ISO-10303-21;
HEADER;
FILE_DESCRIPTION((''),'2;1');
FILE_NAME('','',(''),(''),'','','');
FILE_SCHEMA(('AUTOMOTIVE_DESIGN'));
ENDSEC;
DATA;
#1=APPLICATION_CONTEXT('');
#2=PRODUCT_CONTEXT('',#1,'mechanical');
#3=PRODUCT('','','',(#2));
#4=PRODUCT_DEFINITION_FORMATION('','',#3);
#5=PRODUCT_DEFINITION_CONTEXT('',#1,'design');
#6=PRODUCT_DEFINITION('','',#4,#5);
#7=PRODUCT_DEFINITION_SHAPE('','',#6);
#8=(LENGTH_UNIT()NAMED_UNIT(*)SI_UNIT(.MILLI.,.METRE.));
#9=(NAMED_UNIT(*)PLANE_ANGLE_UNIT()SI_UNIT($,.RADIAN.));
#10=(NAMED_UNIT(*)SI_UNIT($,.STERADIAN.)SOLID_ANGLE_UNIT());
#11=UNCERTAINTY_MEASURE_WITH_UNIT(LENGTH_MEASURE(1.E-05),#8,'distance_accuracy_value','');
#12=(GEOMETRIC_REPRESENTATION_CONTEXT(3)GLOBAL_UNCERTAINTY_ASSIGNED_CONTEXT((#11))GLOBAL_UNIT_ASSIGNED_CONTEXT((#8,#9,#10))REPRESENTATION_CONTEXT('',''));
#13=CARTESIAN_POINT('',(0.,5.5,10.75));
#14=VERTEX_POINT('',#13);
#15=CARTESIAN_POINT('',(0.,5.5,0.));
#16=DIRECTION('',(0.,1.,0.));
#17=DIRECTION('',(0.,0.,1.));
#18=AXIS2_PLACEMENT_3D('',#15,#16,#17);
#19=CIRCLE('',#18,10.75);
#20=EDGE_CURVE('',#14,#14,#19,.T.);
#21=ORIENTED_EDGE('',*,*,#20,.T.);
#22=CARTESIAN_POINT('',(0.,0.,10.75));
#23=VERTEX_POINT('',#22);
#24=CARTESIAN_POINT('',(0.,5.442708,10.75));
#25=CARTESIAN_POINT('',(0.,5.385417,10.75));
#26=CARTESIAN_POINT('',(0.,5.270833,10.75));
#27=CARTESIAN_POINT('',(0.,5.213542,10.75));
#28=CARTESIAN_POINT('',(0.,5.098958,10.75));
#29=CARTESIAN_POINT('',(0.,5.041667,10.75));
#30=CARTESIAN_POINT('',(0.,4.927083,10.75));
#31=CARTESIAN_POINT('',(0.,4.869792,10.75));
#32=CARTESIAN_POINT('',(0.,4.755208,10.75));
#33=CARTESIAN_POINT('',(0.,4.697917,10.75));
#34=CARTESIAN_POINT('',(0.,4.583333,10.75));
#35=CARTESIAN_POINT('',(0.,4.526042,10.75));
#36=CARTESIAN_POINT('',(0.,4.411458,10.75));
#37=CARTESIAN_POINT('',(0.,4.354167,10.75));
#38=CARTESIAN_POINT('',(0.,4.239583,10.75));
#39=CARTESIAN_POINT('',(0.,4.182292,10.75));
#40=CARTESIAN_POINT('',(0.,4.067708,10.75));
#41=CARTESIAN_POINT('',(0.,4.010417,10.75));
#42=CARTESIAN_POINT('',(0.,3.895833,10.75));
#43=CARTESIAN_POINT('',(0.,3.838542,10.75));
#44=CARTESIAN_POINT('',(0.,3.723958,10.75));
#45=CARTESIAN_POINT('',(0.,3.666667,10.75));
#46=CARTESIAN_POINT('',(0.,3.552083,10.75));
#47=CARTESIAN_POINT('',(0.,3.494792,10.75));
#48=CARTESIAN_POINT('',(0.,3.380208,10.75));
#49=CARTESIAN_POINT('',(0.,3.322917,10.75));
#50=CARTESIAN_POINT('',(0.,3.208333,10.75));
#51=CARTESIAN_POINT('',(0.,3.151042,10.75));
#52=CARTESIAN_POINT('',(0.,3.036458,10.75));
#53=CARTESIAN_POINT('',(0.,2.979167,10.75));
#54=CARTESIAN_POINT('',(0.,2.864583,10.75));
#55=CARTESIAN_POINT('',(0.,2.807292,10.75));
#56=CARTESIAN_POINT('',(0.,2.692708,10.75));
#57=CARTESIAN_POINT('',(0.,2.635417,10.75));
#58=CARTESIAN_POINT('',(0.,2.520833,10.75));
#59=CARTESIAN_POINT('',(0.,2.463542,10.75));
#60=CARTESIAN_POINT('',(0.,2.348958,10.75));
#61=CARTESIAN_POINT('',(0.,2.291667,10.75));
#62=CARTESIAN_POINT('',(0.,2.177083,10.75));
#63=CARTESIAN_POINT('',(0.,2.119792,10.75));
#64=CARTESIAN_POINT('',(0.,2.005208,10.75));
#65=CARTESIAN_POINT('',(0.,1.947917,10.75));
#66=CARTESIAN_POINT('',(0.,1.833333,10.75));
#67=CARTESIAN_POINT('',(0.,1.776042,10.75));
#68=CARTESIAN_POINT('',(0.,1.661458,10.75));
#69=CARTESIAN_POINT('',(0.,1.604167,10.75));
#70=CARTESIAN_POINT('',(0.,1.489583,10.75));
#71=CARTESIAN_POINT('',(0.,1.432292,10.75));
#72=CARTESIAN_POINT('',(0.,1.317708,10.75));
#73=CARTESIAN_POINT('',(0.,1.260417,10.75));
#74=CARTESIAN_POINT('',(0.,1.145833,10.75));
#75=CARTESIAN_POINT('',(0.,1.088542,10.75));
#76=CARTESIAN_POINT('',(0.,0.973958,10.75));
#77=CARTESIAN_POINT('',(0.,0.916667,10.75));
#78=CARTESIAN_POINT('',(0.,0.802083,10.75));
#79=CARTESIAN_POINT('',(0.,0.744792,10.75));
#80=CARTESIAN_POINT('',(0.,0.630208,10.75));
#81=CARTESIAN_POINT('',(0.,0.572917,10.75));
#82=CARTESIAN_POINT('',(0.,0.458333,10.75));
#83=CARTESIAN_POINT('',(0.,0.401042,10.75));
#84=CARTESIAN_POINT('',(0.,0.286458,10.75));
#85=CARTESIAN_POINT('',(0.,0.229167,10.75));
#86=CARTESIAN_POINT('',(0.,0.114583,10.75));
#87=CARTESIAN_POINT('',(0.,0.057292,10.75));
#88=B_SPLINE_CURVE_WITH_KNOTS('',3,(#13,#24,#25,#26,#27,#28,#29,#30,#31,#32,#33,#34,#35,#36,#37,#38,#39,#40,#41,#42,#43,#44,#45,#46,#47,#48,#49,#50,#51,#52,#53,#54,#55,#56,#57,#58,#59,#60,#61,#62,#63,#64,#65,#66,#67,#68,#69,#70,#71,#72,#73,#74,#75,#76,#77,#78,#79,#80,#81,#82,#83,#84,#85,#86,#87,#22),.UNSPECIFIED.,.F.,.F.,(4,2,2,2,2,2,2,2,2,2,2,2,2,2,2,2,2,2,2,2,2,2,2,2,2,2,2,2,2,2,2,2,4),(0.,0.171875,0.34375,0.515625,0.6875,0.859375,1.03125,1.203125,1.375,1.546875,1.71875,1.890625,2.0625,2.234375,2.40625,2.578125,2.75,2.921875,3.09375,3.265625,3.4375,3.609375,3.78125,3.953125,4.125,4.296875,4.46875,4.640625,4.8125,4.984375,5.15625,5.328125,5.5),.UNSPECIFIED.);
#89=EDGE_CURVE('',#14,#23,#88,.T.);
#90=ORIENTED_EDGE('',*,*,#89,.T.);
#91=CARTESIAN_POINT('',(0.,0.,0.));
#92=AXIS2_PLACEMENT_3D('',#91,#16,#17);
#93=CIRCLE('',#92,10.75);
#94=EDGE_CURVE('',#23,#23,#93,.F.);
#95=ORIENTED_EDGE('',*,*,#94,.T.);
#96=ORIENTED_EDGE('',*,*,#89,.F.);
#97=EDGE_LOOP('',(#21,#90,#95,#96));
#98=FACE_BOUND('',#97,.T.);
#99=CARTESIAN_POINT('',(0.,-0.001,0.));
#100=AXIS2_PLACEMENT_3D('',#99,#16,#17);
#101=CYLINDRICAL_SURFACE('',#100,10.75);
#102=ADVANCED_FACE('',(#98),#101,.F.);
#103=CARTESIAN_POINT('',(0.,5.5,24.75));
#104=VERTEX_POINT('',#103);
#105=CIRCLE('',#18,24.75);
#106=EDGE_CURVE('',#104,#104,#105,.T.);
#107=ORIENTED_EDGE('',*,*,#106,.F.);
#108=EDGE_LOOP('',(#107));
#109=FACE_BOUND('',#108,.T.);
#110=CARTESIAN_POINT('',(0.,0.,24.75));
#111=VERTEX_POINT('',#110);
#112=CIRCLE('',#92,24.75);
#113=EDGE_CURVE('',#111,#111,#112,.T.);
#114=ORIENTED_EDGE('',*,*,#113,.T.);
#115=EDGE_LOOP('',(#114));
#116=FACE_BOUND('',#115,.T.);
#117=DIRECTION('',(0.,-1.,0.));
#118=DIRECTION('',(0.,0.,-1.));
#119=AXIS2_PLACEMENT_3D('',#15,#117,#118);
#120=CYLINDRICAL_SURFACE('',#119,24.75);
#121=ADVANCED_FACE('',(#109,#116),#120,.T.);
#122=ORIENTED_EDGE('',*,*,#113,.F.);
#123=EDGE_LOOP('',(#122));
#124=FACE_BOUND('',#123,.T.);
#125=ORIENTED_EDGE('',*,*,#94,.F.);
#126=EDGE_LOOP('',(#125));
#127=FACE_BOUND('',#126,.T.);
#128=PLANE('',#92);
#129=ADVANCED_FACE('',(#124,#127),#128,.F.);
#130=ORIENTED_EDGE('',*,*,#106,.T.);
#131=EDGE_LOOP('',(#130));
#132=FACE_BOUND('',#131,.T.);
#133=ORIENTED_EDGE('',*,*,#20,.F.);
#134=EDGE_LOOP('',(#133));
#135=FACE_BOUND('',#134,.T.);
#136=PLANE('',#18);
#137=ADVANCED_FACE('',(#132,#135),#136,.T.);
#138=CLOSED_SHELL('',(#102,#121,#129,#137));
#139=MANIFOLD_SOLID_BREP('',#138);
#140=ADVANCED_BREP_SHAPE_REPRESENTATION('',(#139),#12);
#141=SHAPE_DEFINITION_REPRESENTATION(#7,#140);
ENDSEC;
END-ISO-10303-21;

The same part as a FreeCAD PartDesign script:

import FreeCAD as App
import Part
import Sketcher
Q = App.Units.Quantity

doc = App.newDocument("Part")
body = doc.addObject("PartDesign::Body", "Body")

# Sketch on XZ plane
sketch1 = body.newObject("Sketcher::SketchObject", "Sketch")
sketch1.AttachmentSupport = (doc.getObject("XZ_Plane"), [""])
sketch1.MapMode = "FlatFace"
sketch1.addGeometry(Part.Circle(App.Vector(0, 0, 0), App.Vector(0, 0, 1), 25), False)
sketch1.addConstraint([
    Sketcher.Constraint("Coincident", 0, 3, -1, 1),
    Sketcher.Constraint("Diameter", 0, Q("49.5 mm")),
])
pad1 = body.newObject("PartDesign::Pad", "Pad")
pad1.Profile = sketch1
pad1.Length = 5.5
pad1.Reversed = True

# Sketch on XZ plane
sketch2 = body.newObject("Sketcher::SketchObject", "Sketch001")
sketch2.AttachmentSupport = (doc.getObject("XZ_Plane"), [""])
sketch2.MapMode = "FlatFace"
sketch2.AttachmentOffset = App.Placement(App.Vector(0, 0, -5.5), App.Rotation())
sketch2.addGeometry(Part.Circle(App.Vector(0, 0, 0), App.Vector(0, 0, 1), 11), False)
sketch2.addConstraint([
    Sketcher.Constraint("Coincident", 0, 3, -1, 1),
    Sketcher.Constraint("Diameter", 0, Q("21.5 mm")),
])
pocket1 = body.newObject("PartDesign::Pocket", "Pocket")
pocket1.Profile = sketch2
pocket1.Type = "UpToFirst"
pocket1.Reversed = True

doc.recompute()
